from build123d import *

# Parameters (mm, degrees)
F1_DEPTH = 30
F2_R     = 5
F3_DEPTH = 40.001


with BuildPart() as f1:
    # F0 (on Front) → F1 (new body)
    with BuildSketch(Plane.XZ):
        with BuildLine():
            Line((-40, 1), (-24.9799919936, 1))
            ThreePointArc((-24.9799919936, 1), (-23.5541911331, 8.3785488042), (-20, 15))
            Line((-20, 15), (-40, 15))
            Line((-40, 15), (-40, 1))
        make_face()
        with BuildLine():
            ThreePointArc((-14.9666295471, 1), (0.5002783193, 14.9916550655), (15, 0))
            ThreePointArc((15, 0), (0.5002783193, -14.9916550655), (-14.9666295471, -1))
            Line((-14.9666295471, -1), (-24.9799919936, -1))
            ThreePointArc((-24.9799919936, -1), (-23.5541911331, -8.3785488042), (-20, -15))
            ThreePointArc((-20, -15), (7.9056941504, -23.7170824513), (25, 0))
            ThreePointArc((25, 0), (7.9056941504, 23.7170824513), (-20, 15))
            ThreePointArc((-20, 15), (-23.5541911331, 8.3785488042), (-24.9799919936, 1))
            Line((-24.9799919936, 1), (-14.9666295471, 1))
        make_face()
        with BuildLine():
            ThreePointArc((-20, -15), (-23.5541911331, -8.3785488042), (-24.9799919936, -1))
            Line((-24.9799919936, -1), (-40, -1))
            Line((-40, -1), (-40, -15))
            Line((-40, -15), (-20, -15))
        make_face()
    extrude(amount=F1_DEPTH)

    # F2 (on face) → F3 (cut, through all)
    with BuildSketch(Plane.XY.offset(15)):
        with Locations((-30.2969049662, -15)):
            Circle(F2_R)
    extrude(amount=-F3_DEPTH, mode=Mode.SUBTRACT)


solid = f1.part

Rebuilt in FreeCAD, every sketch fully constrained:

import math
import FreeCAD as App
import Part
import Sketcher

doc = App.newDocument("Part")
body = doc.addObject("PartDesign::Body", "Body")

# Sketch on XZ plane
sketch1 = body.newObject("Sketcher::SketchObject", "Sketch")
sketch1.AttachmentSupport = (doc.getObject("XZ_Plane"), [""])
sketch1.MapMode = "FlatFace"
sketch1.addGeometry(Part.LineSegment(App.Vector(-40, 1, 0), App.Vector(-15, 1, 0)), False)
sketch1.addGeometry(Part.ArcOfCircle(Part.Circle(App.Vector(0, 0, 0), App.Vector(0, 0, 1), 15), math.radians(0), math.radians(176)), False)
sketch1.addGeometry(Part.ArcOfCircle(Part.Circle(App.Vector(0, 0, 0), App.Vector(0, 0, 1), 15), math.radians(-176), math.radians(0)), False)
sketch1.addGeometry(Part.LineSegment(App.Vector(-15, -1, 0), App.Vector(-40, -1, 0)), False)
sketch1.addGeometry(Part.LineSegment(App.Vector(-40, -1, 0), App.Vector(-40, -15, 0)), False)
sketch1.addGeometry(Part.LineSegment(App.Vector(-40, -15, 0), App.Vector(-20, -15, 0)), False)
sketch1.addGeometry(Part.ArcOfCircle(Part.Circle(App.Vector(0, 0, 0), App.Vector(0, 0, 1), 25), math.radians(-143), math.radians(0)), False)
sketch1.addGeometry(Part.ArcOfCircle(Part.Circle(App.Vector(0, 0, 0), App.Vector(0, 0, 1), 25), math.radians(0), math.radians(143)), False)
sketch1.addGeometry(Part.LineSegment(App.Vector(-20, 15, 0), App.Vector(-40, 15, 0)), False)
sketch1.addGeometry(Part.LineSegment(App.Vector(-40, 15, 0), App.Vector(-40, 1, 0)), False)
sketch1.addConstraint(Sketcher.Constraint("Coincident", 0, 2, 1, 2))
sketch1.addConstraint(Sketcher.Constraint("Tangent", 1, 1, 2, 2))
sketch1.addConstraint(Sketcher.Constraint("Coincident", 2, 1, 3, 1))
sketch1.addConstraint(Sketcher.Constraint("Coincident", 3, 2, 4, 1))
sketch1.addConstraint(Sketcher.Constraint("Coincident", 4, 2, 5, 1))
sketch1.addConstraint(Sketcher.Constraint("Coincident", 5, 2, 6, 1))
sketch1.addConstraint(Sketcher.Constraint("Tangent", 6, 2, 7, 1))
sketch1.addConstraint(Sketcher.Constraint("Coincident", 7, 2, 8, 1))
sketch1.addConstraint(Sketcher.Constraint("Coincident", 8, 2, 9, 1))
sketch1.addConstraint(Sketcher.Constraint("Coincident", 9, 2, 0, 1))
sketch1.addConstraint(Sketcher.Constraint("Horizontal", 0))
sketch1.addConstraint(Sketcher.Constraint("Horizontal", 3))
sketch1.addConstraint(Sketcher.Constraint("Vertical", 4))
sketch1.addConstraint(Sketcher.Constraint("Horizontal", 5))
sketch1.addConstraint(Sketcher.Constraint("Horizontal", 8))
sketch1.addConstraint(Sketcher.Constraint("Vertical", 9))
sketch1.addConstraint(Sketcher.Constraint("Coincident", 1, 3, -1, 1))
sketch1.addConstraint(Sketcher.Constraint("Coincident", 6, 3, -1, 1))
sketch1.addConstraint(Sketcher.Constraint("Equal", 1, 2))
sketch1.addConstraint(Sketcher.Constraint("Equal", 6, 7))
sketch1.addConstraint(Sketcher.Constraint("Symmetric", 4, 2, 8, 2, -1))
sketch1.addConstraint(Sketcher.Constraint("PointOnObject", 1, 1, -1))
sketch1.addConstraint(Sketcher.Constraint("PointOnObject", 6, 2, -1))
sketch1.addConstraint(Sketcher.Constraint("Vertical", 0, 2, 2, 1))
sketch1.addConstraint(Sketcher.Constraint("Radius", 1, 15.0))
sketch1.addConstraint(Sketcher.Constraint("Radius", 6, 25.0))
sketch1.addConstraint(Sketcher.Constraint("DistanceX", 5, 1, 5, 2, 20.0))
sketch1.addConstraint(Sketcher.Constraint("DistanceY", 4, 2, 4, 1, 14.0))
sketch1.addConstraint(Sketcher.Constraint("DistanceY", -1, 1, 0, 2, 1.0))
pad1 = body.newObject("PartDesign::Pad", "Pad")
pad1.Profile = sketch1
pad1.Length = 30

# Sketch on XY plane
sketch2 = body.newObject("Sketcher::SketchObject", "Sketch001")
sketch2.AttachmentSupport = (doc.getObject("XY_Plane"), [""])
sketch2.MapMode = "FlatFace"
sketch2.AttachmentOffset = App.Placement(App.Vector(0, 0, 15), App.Rotation())
sketch2.addGeometry(Part.Circle(App.Vector(-30, -15, 0), App.Vector(0, 0, 1), 5), False)
sketch2.addConstraint(Sketcher.Constraint("Diameter", 0, 10.0))
sketch2.addConstraint(Sketcher.Constraint("DistanceY", 0, 3, -1, 1, 15.0))
sketch2.addConstraint(Sketcher.Constraint("DistanceX", 0, 3, -1, 1, 30.296905))
pocket1 = body.newObject("PartDesign::Pocket", "Pocket")
pocket1.Profile = sketch2
pocket1.Type = "ThroughAll"

doc.recompute()
